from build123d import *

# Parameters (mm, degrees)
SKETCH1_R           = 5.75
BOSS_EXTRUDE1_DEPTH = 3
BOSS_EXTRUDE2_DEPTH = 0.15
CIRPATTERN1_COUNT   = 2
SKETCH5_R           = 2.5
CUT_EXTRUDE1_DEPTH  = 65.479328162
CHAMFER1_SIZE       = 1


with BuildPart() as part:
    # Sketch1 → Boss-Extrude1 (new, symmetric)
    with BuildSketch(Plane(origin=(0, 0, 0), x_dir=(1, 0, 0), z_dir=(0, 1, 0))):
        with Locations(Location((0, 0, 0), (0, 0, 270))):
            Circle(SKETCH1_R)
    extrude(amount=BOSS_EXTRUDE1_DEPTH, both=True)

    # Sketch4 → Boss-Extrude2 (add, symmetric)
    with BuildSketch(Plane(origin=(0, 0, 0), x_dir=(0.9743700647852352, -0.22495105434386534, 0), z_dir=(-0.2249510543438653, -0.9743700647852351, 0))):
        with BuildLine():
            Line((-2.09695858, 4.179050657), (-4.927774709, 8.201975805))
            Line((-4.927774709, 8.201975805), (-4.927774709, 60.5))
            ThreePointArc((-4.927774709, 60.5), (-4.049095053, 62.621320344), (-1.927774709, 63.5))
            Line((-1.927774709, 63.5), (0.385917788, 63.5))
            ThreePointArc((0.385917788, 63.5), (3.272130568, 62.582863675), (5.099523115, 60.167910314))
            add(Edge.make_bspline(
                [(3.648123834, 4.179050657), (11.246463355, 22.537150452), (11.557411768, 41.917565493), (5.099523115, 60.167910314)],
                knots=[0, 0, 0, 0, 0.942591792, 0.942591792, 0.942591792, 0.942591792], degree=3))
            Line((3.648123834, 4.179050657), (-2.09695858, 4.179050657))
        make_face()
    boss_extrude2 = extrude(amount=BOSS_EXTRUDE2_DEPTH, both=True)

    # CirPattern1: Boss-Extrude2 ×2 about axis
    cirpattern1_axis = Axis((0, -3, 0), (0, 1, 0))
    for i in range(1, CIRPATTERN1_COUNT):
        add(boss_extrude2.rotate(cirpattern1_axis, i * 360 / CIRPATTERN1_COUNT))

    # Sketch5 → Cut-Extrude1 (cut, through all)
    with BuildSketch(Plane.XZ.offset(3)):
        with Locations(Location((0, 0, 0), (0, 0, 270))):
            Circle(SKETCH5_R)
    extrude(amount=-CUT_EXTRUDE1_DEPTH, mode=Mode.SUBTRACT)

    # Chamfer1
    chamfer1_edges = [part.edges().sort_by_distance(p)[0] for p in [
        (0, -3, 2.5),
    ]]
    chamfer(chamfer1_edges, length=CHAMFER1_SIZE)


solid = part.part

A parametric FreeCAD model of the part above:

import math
import FreeCAD as App
import Part
import Sketcher
from FreeCAD import Vector
Q = App.Units.Quantity


def edges_at(feature, points):
    """Names of the edges that pass closest to the given points."""
    edges = feature.Shape.Edges
    near = lambda p: min(range(len(edges)), key=lambda i: edges[i].distToShape(Part.Vertex(*p))[0])
    return sorted({f"Edge{near(p) + 1}" for p in points})

doc = App.newDocument("Part")
body = doc.addObject("PartDesign::Body", "Body")

sketch1 = body.newObject("Sketcher::SketchObject", "Sketch")
sketch1.AttachmentSupport = (doc.getObject("XZ_Plane"), [""])
sketch1.MapMode = "FlatFace"
sketch1.addGeometry(Part.Circle(Vector(0, 0, 0), Vector(0, 0, 1), 6), False)
sketch1.addConstraint([
    Sketcher.Constraint("Coincident", 0, 3, -1, 1),
    Sketcher.Constraint("Diameter", 0, Q("11.5 mm")),
])
pad1 = body.newObject("PartDesign::Pad", "Pad")
pad1.Profile = sketch1
pad1.Length = 6
pad1.Midplane = True

sketch2 = body.newObject("Sketcher::SketchObject", "Sketch001")
sketch2.Placement = App.Placement(Vector(0, 0, 0), App.Rotation(Vector(0.974370065, -0.224951054, 0), Vector(0, 0, 1), Vector(-0.224951054, -0.974370065, 0), "ZXY"))
sketch2.addGeometry([
    Part.LineSegment(Vector(-4.927775, 8.201976, 0), Vector(-2.096959, 4.179051, 0)),
    Part.LineSegment(Vector(-2.096959, 4.179051, 0), Vector(3.648124, 4.179051, 0)),
    Part.BSplineCurve([Vector(3.648124, 4.179051, 0), Vector(11.246463, 22.53715, 0), Vector(11.557412, 41.917566, 0), Vector(5.099523, 60.16791, 0)], [4, 4], [0, 0.942591792], False, 3, [1, 1, 1, 1], False),
    Part.ArcOfCircle(Part.Circle(Vector(0.385918, 58.5, 0), Vector(0, 0, 1), 5), math.radians(19.486337), math.radians(90)),
    Part.LineSegment(Vector(0.385918, 63.5, 0), Vector(-1.927775, 63.5, 0)),
    Part.ArcOfCircle(Part.Circle(Vector(-1.927775, 60.5, 0), Vector(0, 0, 1), 3), math.radians(90), math.radians(180)),
    Part.LineSegment(Vector(-4.927775, 60.5, 0), Vector(-4.927775, 8.201976, 0)),
], False)
sketch2.addConstraint([
    Sketcher.Constraint("Block", 2),
    Sketcher.Constraint("Coincident", 0, 2, 1, 1),
    Sketcher.Constraint("Coincident", 1, 2, 2, 1),
    Sketcher.Constraint("Coincident", 2, 2, 3, 1),
    Sketcher.Constraint("Tangent", 3, 2, 4, 1),
    Sketcher.Constraint("Tangent", 4, 2, 5, 1),
    Sketcher.Constraint("Tangent", 5, 2, 6, 1),
    Sketcher.Constraint("Coincident", 6, 2, 0, 1),
    Sketcher.Constraint("Horizontal", 1),
    Sketcher.Constraint("Horizontal", 4),
    Sketcher.Constraint("Vertical", 6),
    Sketcher.Constraint("Radius", 3, Q("5 mm")),
    Sketcher.Constraint("Radius", 5, Q("3 mm")),
    Sketcher.Constraint("DistanceY", -1, 1, 3, 3, Q("58.5 mm")),
    Sketcher.Constraint("DistanceX", 5, 3, 1, 2, Q("5.575899 mm")),
    Sketcher.Constraint("Distance", 0, Q("4.91909 mm")),
    Sketcher.Constraint("DistanceX", 1, 1, 1, 2, Q("5.745082 mm")),
])
pad2 = body.newObject("PartDesign::Pad", "Pad001")
pad2.Profile = sketch2
pad2.Length = 0.3
pad2.Midplane = True
doc.recompute()

polarpattern = body.newObject("PartDesign::PolarPattern", "PolarPattern")
polarpattern.Originals = [pad2]
polarpattern.Axis = (doc.getObject("Y_Axis"), [""])
polarpattern.Angle = 360
polarpattern.Occurrences = 2
body.Tip = polarpattern

sketch3 = body.newObject("Sketcher::SketchObject", "Sketch002")
sketch3.AttachmentSupport = (doc.getObject("XZ_Plane"), [""])
sketch3.MapMode = "FlatFace"
sketch3.AttachmentOffset = App.Placement(Vector(0, 0, 3), App.Rotation())
sketch3.addGeometry(Part.Circle(Vector(0, 0, 0), Vector(0, 0, 1), 2.5), False)
sketch3.addConstraint([
    Sketcher.Constraint("Coincident", 0, 3, -1, 1),
    Sketcher.Constraint("Diameter", 0, Q("5 mm")),
])
pocket1 = body.newObject("PartDesign::Pocket", "Pocket")
pocket1.Profile = sketch3
pocket1.Type = "ThroughAll"
doc.recompute()

chamfer = body.newObject("PartDesign::Chamfer", "Chamfer")
chamfer.Base = (pocket1, edges_at(pocket1, [(0, -3, 2.5)]))
chamfer.Size = 1

doc.recompute()
